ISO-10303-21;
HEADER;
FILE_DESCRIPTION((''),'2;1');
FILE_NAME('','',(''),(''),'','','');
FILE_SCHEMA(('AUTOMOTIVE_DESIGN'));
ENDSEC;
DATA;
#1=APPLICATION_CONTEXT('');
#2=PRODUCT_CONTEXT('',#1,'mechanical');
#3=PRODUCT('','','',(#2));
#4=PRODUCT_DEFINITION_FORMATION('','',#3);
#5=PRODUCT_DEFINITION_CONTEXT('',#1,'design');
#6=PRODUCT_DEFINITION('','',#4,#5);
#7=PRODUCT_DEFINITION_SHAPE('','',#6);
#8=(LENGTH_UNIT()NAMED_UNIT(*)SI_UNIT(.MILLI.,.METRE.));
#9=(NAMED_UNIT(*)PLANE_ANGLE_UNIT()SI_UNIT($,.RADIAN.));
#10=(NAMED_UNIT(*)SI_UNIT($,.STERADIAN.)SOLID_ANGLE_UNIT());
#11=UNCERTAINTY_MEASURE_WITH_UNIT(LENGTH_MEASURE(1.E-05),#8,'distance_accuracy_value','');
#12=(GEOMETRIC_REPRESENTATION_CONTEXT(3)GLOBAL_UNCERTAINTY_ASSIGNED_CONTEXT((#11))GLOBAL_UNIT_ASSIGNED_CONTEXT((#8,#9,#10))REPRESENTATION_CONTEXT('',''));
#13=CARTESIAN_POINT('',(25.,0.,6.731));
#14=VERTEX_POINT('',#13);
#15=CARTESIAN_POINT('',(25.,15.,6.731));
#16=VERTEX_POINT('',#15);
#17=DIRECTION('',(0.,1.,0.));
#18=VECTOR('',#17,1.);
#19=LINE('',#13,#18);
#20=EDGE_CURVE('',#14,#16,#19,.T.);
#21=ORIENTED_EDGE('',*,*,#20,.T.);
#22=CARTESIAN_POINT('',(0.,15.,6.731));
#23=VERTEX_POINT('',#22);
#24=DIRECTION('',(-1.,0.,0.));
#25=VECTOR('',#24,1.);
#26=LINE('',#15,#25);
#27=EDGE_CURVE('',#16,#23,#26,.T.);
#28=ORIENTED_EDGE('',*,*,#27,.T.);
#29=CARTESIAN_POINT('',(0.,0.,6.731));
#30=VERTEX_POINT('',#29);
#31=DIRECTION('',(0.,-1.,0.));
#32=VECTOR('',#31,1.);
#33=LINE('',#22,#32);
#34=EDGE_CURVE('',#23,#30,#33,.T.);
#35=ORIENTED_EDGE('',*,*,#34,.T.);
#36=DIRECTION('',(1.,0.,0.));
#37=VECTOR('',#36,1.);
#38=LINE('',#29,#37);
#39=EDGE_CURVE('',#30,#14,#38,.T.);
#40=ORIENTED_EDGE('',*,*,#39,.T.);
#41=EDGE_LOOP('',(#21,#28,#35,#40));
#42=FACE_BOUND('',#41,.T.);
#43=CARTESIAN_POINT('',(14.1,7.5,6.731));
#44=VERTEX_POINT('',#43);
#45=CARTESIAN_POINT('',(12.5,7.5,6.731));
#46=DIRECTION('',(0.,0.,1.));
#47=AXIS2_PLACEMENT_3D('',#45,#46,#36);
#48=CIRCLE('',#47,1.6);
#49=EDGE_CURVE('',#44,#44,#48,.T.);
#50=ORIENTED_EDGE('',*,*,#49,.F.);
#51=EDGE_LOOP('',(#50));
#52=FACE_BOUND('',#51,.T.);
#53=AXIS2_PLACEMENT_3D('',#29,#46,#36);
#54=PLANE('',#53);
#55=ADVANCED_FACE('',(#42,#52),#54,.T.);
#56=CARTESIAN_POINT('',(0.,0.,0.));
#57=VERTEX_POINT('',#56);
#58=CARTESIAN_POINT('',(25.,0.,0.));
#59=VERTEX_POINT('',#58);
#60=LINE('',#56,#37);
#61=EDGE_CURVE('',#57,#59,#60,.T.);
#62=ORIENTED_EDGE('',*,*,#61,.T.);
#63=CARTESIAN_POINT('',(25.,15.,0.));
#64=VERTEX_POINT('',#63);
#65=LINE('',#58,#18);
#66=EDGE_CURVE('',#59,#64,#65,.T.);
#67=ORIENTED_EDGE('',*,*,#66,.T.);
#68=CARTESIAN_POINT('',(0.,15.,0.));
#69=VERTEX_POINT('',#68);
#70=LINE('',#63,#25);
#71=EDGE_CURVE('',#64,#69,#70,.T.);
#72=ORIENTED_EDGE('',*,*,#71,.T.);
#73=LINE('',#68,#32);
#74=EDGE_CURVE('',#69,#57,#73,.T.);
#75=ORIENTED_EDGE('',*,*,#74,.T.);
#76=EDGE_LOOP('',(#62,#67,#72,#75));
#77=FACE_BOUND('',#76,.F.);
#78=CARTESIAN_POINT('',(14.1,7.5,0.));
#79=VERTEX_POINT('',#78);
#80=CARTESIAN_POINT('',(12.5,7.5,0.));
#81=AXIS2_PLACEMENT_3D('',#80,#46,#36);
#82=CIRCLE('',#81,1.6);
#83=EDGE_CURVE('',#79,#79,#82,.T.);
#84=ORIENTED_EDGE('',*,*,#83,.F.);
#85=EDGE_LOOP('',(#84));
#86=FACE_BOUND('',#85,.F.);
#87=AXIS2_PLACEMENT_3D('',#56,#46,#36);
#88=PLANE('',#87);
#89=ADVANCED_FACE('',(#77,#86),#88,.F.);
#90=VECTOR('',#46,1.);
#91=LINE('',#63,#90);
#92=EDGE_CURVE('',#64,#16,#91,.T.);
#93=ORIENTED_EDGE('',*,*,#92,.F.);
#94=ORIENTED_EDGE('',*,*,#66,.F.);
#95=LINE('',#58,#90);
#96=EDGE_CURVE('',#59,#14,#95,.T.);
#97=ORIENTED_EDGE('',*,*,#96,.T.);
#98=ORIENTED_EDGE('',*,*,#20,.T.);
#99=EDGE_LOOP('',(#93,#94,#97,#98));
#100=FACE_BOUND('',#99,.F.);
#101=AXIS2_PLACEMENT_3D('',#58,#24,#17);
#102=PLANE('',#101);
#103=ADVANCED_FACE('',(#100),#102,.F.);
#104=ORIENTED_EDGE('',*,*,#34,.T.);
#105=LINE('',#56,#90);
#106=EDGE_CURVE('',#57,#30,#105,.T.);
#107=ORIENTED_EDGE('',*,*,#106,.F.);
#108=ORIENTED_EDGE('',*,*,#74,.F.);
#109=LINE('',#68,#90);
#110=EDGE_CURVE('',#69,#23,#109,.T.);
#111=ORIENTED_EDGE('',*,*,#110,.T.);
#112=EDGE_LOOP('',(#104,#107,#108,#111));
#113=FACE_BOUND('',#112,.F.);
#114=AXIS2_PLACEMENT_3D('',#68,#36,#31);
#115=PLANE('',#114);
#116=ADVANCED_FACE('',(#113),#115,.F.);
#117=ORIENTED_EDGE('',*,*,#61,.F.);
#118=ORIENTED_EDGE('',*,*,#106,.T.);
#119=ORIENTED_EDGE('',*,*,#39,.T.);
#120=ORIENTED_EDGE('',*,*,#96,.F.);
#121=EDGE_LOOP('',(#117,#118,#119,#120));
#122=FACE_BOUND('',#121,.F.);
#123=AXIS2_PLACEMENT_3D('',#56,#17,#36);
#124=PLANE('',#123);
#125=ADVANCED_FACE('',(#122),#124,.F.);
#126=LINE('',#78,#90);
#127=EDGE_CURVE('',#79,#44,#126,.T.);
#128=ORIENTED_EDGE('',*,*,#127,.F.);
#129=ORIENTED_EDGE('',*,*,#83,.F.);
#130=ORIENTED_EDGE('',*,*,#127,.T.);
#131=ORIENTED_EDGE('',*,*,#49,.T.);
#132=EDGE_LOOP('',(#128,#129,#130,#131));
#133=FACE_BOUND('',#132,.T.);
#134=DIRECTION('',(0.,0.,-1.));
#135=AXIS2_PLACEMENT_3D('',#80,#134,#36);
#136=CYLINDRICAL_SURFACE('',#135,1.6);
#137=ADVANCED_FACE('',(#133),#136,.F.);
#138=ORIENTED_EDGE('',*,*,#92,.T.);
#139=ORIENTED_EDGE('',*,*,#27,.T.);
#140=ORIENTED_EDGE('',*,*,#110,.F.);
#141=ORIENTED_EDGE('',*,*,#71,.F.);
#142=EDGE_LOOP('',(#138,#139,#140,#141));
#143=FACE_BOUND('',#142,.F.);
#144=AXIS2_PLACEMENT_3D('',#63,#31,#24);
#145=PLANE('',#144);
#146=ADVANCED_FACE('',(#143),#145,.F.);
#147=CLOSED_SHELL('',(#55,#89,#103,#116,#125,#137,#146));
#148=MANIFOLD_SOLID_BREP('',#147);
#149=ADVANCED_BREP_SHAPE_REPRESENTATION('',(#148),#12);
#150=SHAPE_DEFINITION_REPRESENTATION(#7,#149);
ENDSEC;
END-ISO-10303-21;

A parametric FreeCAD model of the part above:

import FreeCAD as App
import Part
import Sketcher
from FreeCAD import Vector
Q = App.Units.Quantity


def add_polygon(sketch, points):
    """Adds a closed chain of lines whose ends are joined by coincident constraints."""
    first, n = sketch.GeometryCount, len(points)
    for a, b in zip(points, points[1:] + points[:1]):
        sketch.addGeometry(Part.LineSegment(App.Vector(*a, 0), App.Vector(*b, 0)), False)
    for i in range(n):
        sketch.addConstraint(Sketcher.Constraint("Coincident", first + i, 2, first + (i + 1) % n, 1))

doc = App.newDocument("Part")
body = doc.addObject("PartDesign::Body", "Body")

sketch1 = doc.addObject("Sketcher::SketchObject", "Sketch")
body.addObject(sketch1)
sketch1.AttachmentSupport = (doc.XY_Plane, [""])
sketch1.MapMode = "FlatFace"
add_polygon(sketch1, [(0, 15), (0, 0), (25, 0), (25, 15)])
sketch1.addGeometry(Part.Circle(Vector(12.5, 7.5, 0), Vector(0, 0, 1), 1.6), False)
sketch1.addConstraint([
    Sketcher.Constraint("Vertical", 0),
    Sketcher.Constraint("Horizontal", 1),
    Sketcher.Constraint("Vertical", 2),
    Sketcher.Constraint("Horizontal", 3),
    Sketcher.Constraint("Coincident", 0, 2, -1, 1),
    Sketcher.Constraint("Diameter", 4, Q("3.2 mm")),
    Sketcher.Constraint("DistanceX", 1, 1, 1, 2, Q("25 mm")),
    Sketcher.Constraint("DistanceY", 0, 2, 0, 1, Q("15 mm")),
    Sketcher.Constraint("DistanceX", -1, 1, 4, 3, Q("12.5 mm")),
    Sketcher.Constraint("DistanceY", -1, 1, 4, 3, Q("7.5 mm")),
])
pad1 = doc.addObject("PartDesign::Pad", "Pad")
body.addObject(pad1)
pad1.Profile = sketch1
pad1.Length = 6.731

doc.recompute()
